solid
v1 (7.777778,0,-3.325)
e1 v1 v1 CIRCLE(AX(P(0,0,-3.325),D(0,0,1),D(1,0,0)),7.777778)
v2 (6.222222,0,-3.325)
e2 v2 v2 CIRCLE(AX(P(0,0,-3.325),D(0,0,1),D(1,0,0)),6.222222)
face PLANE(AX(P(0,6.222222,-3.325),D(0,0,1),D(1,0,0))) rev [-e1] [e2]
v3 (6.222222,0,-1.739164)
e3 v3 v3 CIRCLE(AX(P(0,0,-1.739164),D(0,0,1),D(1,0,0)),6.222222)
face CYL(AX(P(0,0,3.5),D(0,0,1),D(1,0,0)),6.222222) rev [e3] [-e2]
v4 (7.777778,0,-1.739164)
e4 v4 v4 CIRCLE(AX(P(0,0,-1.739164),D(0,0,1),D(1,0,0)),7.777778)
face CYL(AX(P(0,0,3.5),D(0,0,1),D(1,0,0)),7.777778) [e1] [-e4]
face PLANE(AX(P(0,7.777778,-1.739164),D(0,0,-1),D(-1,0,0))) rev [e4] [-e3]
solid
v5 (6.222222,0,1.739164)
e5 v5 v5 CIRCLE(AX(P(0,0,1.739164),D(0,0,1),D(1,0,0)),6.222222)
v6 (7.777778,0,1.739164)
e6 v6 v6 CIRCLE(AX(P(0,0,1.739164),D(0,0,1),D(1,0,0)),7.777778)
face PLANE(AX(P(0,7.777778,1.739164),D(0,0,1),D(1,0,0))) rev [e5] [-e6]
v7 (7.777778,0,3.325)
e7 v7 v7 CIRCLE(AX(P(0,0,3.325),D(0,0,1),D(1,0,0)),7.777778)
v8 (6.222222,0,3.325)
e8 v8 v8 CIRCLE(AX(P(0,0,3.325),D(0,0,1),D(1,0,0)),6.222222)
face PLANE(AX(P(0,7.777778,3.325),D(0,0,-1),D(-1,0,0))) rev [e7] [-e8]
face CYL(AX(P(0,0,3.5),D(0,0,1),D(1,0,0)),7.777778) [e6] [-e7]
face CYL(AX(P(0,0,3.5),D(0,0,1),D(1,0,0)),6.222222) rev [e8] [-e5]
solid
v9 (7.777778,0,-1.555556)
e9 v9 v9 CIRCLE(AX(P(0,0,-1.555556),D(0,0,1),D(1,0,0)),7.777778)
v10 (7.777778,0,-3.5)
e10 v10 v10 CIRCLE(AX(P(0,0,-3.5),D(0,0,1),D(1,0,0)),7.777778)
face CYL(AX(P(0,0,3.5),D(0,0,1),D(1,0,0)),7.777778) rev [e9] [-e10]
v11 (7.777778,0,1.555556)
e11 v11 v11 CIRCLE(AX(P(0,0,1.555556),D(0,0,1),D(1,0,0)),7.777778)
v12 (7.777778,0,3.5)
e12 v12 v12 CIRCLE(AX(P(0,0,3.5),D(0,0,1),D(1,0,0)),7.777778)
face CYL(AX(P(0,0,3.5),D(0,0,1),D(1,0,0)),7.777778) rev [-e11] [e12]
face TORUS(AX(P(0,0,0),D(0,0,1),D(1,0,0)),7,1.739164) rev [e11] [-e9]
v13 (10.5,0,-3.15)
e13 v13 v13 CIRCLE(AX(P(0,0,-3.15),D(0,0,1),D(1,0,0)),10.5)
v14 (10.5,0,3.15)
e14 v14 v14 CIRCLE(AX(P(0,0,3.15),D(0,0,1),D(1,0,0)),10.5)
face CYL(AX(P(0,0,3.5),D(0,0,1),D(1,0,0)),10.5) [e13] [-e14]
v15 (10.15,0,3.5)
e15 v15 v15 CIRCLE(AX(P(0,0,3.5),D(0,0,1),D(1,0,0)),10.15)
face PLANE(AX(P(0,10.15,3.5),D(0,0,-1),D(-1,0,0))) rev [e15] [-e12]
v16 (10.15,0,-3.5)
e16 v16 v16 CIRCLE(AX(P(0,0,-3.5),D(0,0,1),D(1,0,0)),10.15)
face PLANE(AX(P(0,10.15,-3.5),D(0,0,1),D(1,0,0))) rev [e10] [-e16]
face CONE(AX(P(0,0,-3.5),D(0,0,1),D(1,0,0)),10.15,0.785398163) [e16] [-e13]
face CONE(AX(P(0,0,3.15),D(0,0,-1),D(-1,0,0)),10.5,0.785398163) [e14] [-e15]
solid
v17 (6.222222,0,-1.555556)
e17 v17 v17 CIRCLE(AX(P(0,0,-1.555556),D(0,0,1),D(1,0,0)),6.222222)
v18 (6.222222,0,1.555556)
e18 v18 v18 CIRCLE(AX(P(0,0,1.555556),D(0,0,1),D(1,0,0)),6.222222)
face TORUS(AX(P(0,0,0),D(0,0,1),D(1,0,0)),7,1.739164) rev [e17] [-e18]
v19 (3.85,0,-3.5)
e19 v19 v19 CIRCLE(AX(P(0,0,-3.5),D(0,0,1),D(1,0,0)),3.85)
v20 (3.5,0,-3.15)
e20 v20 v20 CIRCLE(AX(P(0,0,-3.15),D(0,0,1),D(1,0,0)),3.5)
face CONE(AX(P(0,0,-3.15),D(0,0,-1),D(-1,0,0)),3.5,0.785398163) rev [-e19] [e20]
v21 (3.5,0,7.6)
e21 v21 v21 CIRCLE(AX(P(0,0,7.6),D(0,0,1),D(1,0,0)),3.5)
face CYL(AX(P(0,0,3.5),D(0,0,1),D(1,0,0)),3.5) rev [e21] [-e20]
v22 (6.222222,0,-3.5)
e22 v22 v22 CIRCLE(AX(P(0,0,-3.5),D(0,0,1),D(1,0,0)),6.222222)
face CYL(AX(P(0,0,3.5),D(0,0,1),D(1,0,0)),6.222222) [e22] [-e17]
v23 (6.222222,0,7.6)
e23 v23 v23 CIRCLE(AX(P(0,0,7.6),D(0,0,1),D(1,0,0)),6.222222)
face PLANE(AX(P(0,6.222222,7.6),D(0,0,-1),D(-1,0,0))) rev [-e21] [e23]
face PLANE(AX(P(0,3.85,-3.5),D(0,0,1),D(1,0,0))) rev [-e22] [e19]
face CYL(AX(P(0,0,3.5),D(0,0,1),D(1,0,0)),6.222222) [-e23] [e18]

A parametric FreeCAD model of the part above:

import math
import FreeCAD as App
import Part
import Sketcher

V = App.Vector
Q = App.Units.Quantity

doc = App.newDocument("Part")
body = doc.addObject("PartDesign::Body", "Body")

# Sketch on YZ plane
sketch1 = body.newObject("Sketcher::SketchObject", "Sketch")
sketch1.AttachmentSupport = (doc.getObject("YZ_Plane"), [""])
sketch1.MapMode = "FlatFace"
sketch1.addGeometry(Part.LineSegment(V(10.5, -3.15, 0), V(10.5, 3.15, 0)), False)
sketch1.addGeometry(Part.LineSegment(V(10.5, 3.15, 0), V(10.15, 3.5, 0)), False)
sketch1.addGeometry(Part.LineSegment(V(10.15, 3.5, 0), V(7.777778, 3.5, 0)), False)
sketch1.addGeometry(Part.LineSegment(V(7.777778, 3.5, 0), V(7.777778, 1.555556, 0)), False)
sketch1.addGeometry(Part.ArcOfCircle(Part.Circle(V(7, 0, 0), V(0, 0, 1), 1.739164), math.radians(-63.434949), math.radians(63.434949)), False)
sketch1.addGeometry(Part.LineSegment(V(7.777778, -1.555556, 0), V(7.777778, -3.5, 0)), False)
sketch1.addGeometry(Part.LineSegment(V(7.777778, -3.5, 0), V(10.15, -3.5, 0)), False)
sketch1.addGeometry(Part.LineSegment(V(10.15, -3.5, 0), V(10.5, -3.15, 0)), False)
sketch1.addConstraint(Sketcher.Constraint("Coincident", 0, 2, 1, 1))
sketch1.addConstraint(Sketcher.Constraint("Coincident", 1, 2, 2, 1))
sketch1.addConstraint(Sketcher.Constraint("Coincident", 2, 2, 3, 1))
sketch1.addConstraint(Sketcher.Constraint("Coincident", 3, 2, 4, 2))
sketch1.addConstraint(Sketcher.Constraint("Coincident", 4, 1, 5, 1))
sketch1.addConstraint(Sketcher.Constraint("Coincident", 5, 2, 6, 1))
sketch1.addConstraint(Sketcher.Constraint("Coincident", 6, 2, 7, 1))
sketch1.addConstraint(Sketcher.Constraint("Coincident", 7, 2, 0, 1))
sketch1.addConstraint(Sketcher.Constraint("Vertical", 0))
sketch1.addConstraint(Sketcher.Constraint("Horizontal", 2))
sketch1.addConstraint(Sketcher.Constraint("Vertical", 3))
sketch1.addConstraint(Sketcher.Constraint("Vertical", 5))
sketch1.addConstraint(Sketcher.Constraint("Horizontal", 6))
sketch1.addConstraint(Sketcher.Constraint("Symmetric", 3, 2, 4, 1, -1))
sketch1.addConstraint(Sketcher.Constraint("Symmetric", 1, 2, 6, 2, -1))
sketch1.addConstraint(Sketcher.Constraint("Perpendicular", 1, 7))
sketch1.addConstraint(Sketcher.Constraint("Equal", 1, 7))
sketch1.addConstraint(Sketcher.Constraint("DistanceY", 0, 1, 0, 2, 6.3))
sketch1.addConstraint(Sketcher.Constraint("DistanceX", -1, 1, 4, 3, 7.0))
sketch1.addConstraint(Sketcher.Constraint("DistanceY", 5, 2, 2, 2, 7.0))
sketch1.addConstraint(Sketcher.Constraint("DistanceX", -1, 1, 0, 2, 10.5))
sketch1.addConstraint(Sketcher.Constraint("Radius", 4, 1.739164))
sketch1.addConstraint(Sketcher.Constraint("DistanceX", 2, 2, 2, 1, 2.372222))
revolution = body.newObject("PartDesign::Revolution", "Revolution")
revolution.Profile = sketch1
revolution.ReferenceAxis = (sketch1, ["V_Axis"])
revolution.Angle = 360
body2 = doc.addObject("PartDesign::Body", "Body001")

# Sketch on YZ plane
sketch2 = body2.newObject("Sketcher::SketchObject", "Sketch001")
sketch2.AttachmentSupport = (doc.getObject("YZ_Plane001"), [""])
sketch2.MapMode = "FlatFace"
sketch2.addGeometry(Part.LineSegment(V(6.222222, 1.555556, 0), V(6.222222, 3.5, 0)), False)
sketch2.addGeometry(Part.LineSegment(V(6.222222, 3.5, 0), V(3.85, 3.5, 0)), False)
sketch2.addGeometry(Part.LineSegment(V(3.85, 3.5, 0), V(3.5, 3.15, 0)), False)
sketch2.addGeometry(Part.LineSegment(V(3.5, 3.15, 0), V(3.5, -3.15, 0)), False)
sketch2.addGeometry(Part.LineSegment(V(3.5, -3.15, 0), V(3.85, -3.5, 0)), False)
sketch2.addGeometry(Part.LineSegment(V(3.85, -3.5, 0), V(6.222222, -3.5, 0)), False)
sketch2.addGeometry(Part.LineSegment(V(6.222222, -3.5, 0), V(6.222222, -1.555556, 0)), False)
sketch2.addGeometry(Part.ArcOfCircle(Part.Circle(V(7, 0, 0), V(0, 0, 1), 1.739164), math.radians(116.565051), math.radians(243.434949)), False)
sketch2.addConstraint(Sketcher.Constraint("Coincident", 0, 2, 1, 1))
sketch2.addConstraint(Sketcher.Constraint("Coincident", 1, 2, 2, 1))
sketch2.addConstraint(Sketcher.Constraint("Coincident", 2, 2, 3, 1))
sketch2.addConstraint(Sketcher.Constraint("Coincident", 3, 2, 4, 1))
sketch2.addConstraint(Sketcher.Constraint("Coincident", 4, 2, 5, 1))
sketch2.addConstraint(Sketcher.Constraint("Coincident", 5, 2, 6, 1))
sketch2.addConstraint(Sketcher.Constraint("Coincident", 6, 2, 7, 2))
sketch2.addConstraint(Sketcher.Constraint("Coincident", 7, 1, 0, 1))
sketch2.addConstraint(Sketcher.Constraint("Vertical", 0))
sketch2.addConstraint(Sketcher.Constraint("Horizontal", 1))
sketch2.addConstraint(Sketcher.Constraint("Vertical", 3))
sketch2.addConstraint(Sketcher.Constraint("Horizontal", 5))
sketch2.addConstraint(Sketcher.Constraint("Vertical", 6))
sketch2.addConstraint(Sketcher.Constraint("Symmetric", 1, 2, 4, 2, -1))
sketch2.addConstraint(Sketcher.Constraint("Symmetric", 6, 2, 7, 1, -1))
sketch2.addConstraint(Sketcher.Constraint("Perpendicular", 2, 4))
sketch2.addConstraint(Sketcher.Constraint("Equal", 2, 4))
sketch2.addConstraint(Sketcher.Constraint("DistanceY", 3, 2, 3, 1, 6.3))
sketch2.addConstraint(Sketcher.Constraint("DistanceX", -1, 1, 7, 3, 7.0))
sketch2.addConstraint(Sketcher.Constraint("DistanceY", 4, 2, 1, 2, 7.0))
sketch2.addConstraint(Sketcher.Constraint("DistanceX", -1, 1, 2, 2, 3.5))
sketch2.addConstraint(Sketcher.Constraint("Radius", 7, 1.739164))
sketch2.addConstraint(Sketcher.Constraint("DistanceX", 1, 2, 1, 1, 2.372222))
revolution2 = body2.newObject("PartDesign::Revolution", "Revolution001")
revolution2.Profile = sketch2
revolution2.ReferenceAxis = (sketch2, ["V_Axis"])
revolution2.Angle = 360

# Sketch on YZ plane
sketch3 = body2.newObject("Sketcher::SketchObject", "Sketch002")
sketch3.AttachmentSupport = (doc.getObject("YZ_Plane001"), [""])
sketch3.MapMode = "FlatFace"
sketch3.addGeometry(Part.LineSegment(V(3.5, 3.15, 0), V(3.85, 3.5, 0)), False)
sketch3.addGeometry(Part.LineSegment(V(3.85, 3.5, 0), V(6.222222, 3.5, 0)), False)
sketch3.addGeometry(Part.LineSegment(V(6.222222, 3.5, 0), V(6.222222, 7.6, 0)), False)
sketch3.addGeometry(Part.LineSegment(V(6.222222, 7.6, 0), V(3.5, 7.6, 0)), False)
sketch3.addGeometry(Part.LineSegment(V(3.5, 7.6, 0), V(3.5, 3.15, 0)), False)
sketch3.addConstraint(Sketcher.Constraint("Coincident", 0, 2, 1, 1))
sketch3.addConstraint(Sketcher.Constraint("Coincident", 1, 2, 2, 1))
sketch3.addConstraint(Sketcher.Constraint("Coincident", 2, 2, 3, 1))
sketch3.addConstraint(Sketcher.Constraint("Coincident", 3, 2, 4, 1))
sketch3.addConstraint(Sketcher.Constraint("Coincident", 4, 2, 0, 1))
sketch3.addConstraint(Sketcher.Constraint("Horizontal", 1))
sketch3.addConstraint(Sketcher.Constraint("Vertical", 2))
sketch3.addConstraint(Sketcher.Constraint("Horizontal", 3))
sketch3.addConstraint(Sketcher.Constraint("Vertical", 4))
sketch3.addConstraint(Sketcher.Constraint("Angle", 0, Q("45 deg")))
sketch3.addConstraint(Sketcher.Constraint("DistanceY", 2, 1, 2, 2, 4.1))
sketch3.addConstraint(Sketcher.Constraint("DistanceY", 4, 2, 4, 1, 4.45))
sketch3.addConstraint(Sketcher.Constraint("DistanceY", -1, 1, 0, 2, 3.5))
sketch3.addConstraint(Sketcher.Constraint("DistanceX", -1, 1, 3, 2, 3.5))
sketch3.addConstraint(Sketcher.Constraint("DistanceX", 1, 1, 1, 2, 2.372222))
revolution3 = body2.newObject("PartDesign::Revolution", "Revolution002")
revolution3.Profile = sketch3
revolution3.ReferenceAxis = (sketch3, ["V_Axis"])
revolution3.Angle = 360
body3 = doc.addObject("PartDesign::Body", "Body002")

# Sketch on YZ plane
sketch4 = body3.newObject("Sketcher::SketchObject", "Sketch003")
sketch4.AttachmentSupport = (doc.getObject("YZ_Plane002"), [""])
sketch4.MapMode = "FlatFace"
sketch4.addGeometry(Part.LineSegment(V(7.777778, 3.325, 0), V(6.222222, 3.325, 0)), False)
sketch4.addGeometry(Part.LineSegment(V(6.222222, 3.325, 0), V(6.222222, 1.739164, 0)), False)
sketch4.addGeometry(Part.LineSegment(V(6.222222, 1.739164, 0), V(7.777778, 1.739164, 0)), False)
sketch4.addGeometry(Part.LineSegment(V(7.777778, 1.739164, 0), V(7.777778, 3.325, 0)), False)
sketch4.addConstraint(Sketcher.Constraint("Coincident", 0, 2, 1, 1))
sketch4.addConstraint(Sketcher.Constraint("Coincident", 1, 2, 2, 1))
sketch4.addConstraint(Sketcher.Constraint("Coincident", 2, 2, 3, 1))
sketch4.addConstraint(Sketcher.Constraint("Coincident", 3, 2, 0, 1))
sketch4.addConstraint(Sketcher.Constraint("Horizontal", 0))
sketch4.addConstraint(Sketcher.Constraint("Vertical", 1))
sketch4.addConstraint(Sketcher.Constraint("Horizontal", 2))
sketch4.addConstraint(Sketcher.Constraint("Vertical", 3))
sketch4.addConstraint(Sketcher.Constraint("DistanceY", -1, 1, 0, 2, 3.325))
sketch4.addConstraint(Sketcher.Constraint("DistanceX", 0, 2, 0, 1, 1.555556))
sketch4.addConstraint(Sketcher.Constraint("DistanceY", 1, 2, 1, 1, 1.585836))
sketch4.addConstraint(Sketcher.Constraint("DistanceX", -1, 1, 0, 2, 6.222222))
revolution4 = body3.newObject("PartDesign::Revolution", "Revolution003")
revolution4.Profile = sketch4
revolution4.ReferenceAxis = (sketch4, ["V_Axis"])
revolution4.Angle = 360
body4 = doc.addObject("PartDesign::Body", "Body003")

# Sketch on YZ plane
sketch5 = body4.newObject("Sketcher::SketchObject", "Sketch004")
sketch5.AttachmentSupport = (doc.getObject("YZ_Plane003"), [""])
sketch5.MapMode = "FlatFace"
sketch5.addGeometry(Part.LineSegment(V(7.777778, -1.739164, 0), V(6.222222, -1.739164, 0)), False)
sketch5.addGeometry(Part.LineSegment(V(6.222222, -1.739164, 0), V(6.222222, -3.325, 0)), False)
sketch5.addGeometry(Part.LineSegment(V(6.222222, -3.325, 0), V(7.777778, -3.325, 0)), False)
sketch5.addGeometry(Part.LineSegment(V(7.777778, -3.325, 0), V(7.777778, -1.739164, 0)), False)
sketch5.addConstraint(Sketcher.Constraint("Coincident", 0, 2, 1, 1))
sketch5.addConstraint(Sketcher.Constraint("Coincident", 1, 2, 2, 1))
sketch5.addConstraint(Sketcher.Constraint("Coincident", 2, 2, 3, 1))
sketch5.addConstraint(Sketcher.Constraint("Coincident", 3, 2, 0, 1))
sketch5.addConstraint(Sketcher.Constraint("Horizontal", 0))
sketch5.addConstraint(Sketcher.Constraint("Vertical", 1))
sketch5.addConstraint(Sketcher.Constraint("Horizontal", 2))
sketch5.addConstraint(Sketcher.Constraint("Vertical", 3))
sketch5.addConstraint(Sketcher.Constraint("DistanceY", 1, 2, -1, 1, 3.325))
sketch5.addConstraint(Sketcher.Constraint("DistanceX", 0, 2, 0, 1, 1.555556))
sketch5.addConstraint(Sketcher.Constraint("DistanceY", 1, 2, 1, 1, 1.585836))
sketch5.addConstraint(Sketcher.Constraint("DistanceX", -1, 1, 0, 2, 6.222222))
revolution5 = body4.newObject("PartDesign::Revolution", "Revolution004")
revolution5.Profile = sketch5
revolution5.ReferenceAxis = (sketch5, ["V_Axis"])
revolution5.Angle = 360

doc.recompute()
